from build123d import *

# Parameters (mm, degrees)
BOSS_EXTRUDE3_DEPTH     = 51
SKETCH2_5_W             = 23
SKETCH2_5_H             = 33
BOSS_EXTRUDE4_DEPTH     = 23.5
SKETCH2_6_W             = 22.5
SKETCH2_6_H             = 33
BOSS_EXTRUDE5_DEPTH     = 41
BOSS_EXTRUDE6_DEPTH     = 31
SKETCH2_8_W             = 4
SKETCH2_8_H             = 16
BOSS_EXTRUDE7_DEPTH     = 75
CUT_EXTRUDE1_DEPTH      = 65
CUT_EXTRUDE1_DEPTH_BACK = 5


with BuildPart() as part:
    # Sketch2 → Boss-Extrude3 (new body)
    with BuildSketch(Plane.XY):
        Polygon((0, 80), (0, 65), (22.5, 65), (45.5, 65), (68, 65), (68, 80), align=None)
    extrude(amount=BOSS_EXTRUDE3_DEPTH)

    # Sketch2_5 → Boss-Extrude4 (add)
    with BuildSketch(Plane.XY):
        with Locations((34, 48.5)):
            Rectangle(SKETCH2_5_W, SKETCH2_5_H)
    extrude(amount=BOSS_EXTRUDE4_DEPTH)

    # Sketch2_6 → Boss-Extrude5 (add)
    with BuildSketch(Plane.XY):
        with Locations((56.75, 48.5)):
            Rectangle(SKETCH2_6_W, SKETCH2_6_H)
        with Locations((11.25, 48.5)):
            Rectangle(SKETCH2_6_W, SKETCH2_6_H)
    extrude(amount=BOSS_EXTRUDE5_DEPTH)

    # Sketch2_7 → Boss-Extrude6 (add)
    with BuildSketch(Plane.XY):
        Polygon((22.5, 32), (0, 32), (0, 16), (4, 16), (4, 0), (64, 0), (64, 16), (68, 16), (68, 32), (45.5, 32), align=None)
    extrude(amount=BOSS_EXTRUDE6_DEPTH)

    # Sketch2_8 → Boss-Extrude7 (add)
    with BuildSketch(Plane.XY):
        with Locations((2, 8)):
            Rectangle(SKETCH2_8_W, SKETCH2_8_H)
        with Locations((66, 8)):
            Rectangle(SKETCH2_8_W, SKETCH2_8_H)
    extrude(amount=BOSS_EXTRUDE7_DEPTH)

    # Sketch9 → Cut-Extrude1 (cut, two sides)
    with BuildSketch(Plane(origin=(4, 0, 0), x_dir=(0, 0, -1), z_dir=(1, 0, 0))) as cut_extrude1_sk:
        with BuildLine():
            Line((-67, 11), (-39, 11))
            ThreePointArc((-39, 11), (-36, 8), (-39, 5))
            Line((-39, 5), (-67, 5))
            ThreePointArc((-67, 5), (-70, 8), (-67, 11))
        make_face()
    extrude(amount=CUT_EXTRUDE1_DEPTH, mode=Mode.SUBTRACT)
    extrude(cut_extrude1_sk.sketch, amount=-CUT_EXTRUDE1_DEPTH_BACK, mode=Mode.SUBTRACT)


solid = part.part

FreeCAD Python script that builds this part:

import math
import FreeCAD as App
import Part
import Sketcher
Q = App.Units.Quantity

doc = App.newDocument("Part")
body = doc.addObject("PartDesign::Body", "Body")

# Sketch on XY plane
sketch1 = body.newObject("Sketcher::SketchObject", "Sketch")
sketch1.AttachmentSupport = (doc.getObject("XY_Plane"), [""])
sketch1.MapMode = "FlatFace"
sketch1.addGeometry([
    Part.LineSegment(App.Vector(0, 80, 0), App.Vector(0, 65, 0)),
    Part.LineSegment(App.Vector(0, 65, 0), App.Vector(68, 65, 0)),
    Part.LineSegment(App.Vector(68, 65, 0), App.Vector(68, 80, 0)),
    Part.LineSegment(App.Vector(68, 80, 0), App.Vector(0, 80, 0)),
], False)
sketch1.addConstraint([
    Sketcher.Constraint("Coincident", 0, 2, 1, 1),
    Sketcher.Constraint("Coincident", 1, 2, 2, 1),
    Sketcher.Constraint("Coincident", 2, 2, 3, 1),
    Sketcher.Constraint("Coincident", 3, 2, 0, 1),
    Sketcher.Constraint("Vertical", 0),
    Sketcher.Constraint("Horizontal", 1),
    Sketcher.Constraint("Vertical", 2),
    Sketcher.Constraint("Horizontal", 3),
    Sketcher.Constraint("PointOnObject", 0, 2, -2),
    Sketcher.Constraint("DistanceX", 1, 1, 1, 2, Q("68 mm")),
    Sketcher.Constraint("DistanceY", 0, 2, 0, 1, Q("15 mm")),
    Sketcher.Constraint("DistanceY", -1, 1, 0, 2, Q("65 mm")),
])
pad1 = body.newObject("PartDesign::Pad", "Pad")
pad1.Profile = sketch1
pad1.Length = 51

# Sketch on XY plane
sketch2 = body.newObject("Sketcher::SketchObject", "Sketch001")
sketch2.AttachmentSupport = (doc.getObject("XY_Plane"), [""])
sketch2.MapMode = "FlatFace"
sketch2.addGeometry([
    Part.LineSegment(App.Vector(22, 65, 0), App.Vector(22, 32, 0)),
    Part.LineSegment(App.Vector(22, 32, 0), App.Vector(46, 32, 0)),
    Part.LineSegment(App.Vector(46, 32, 0), App.Vector(46, 65, 0)),
    Part.LineSegment(App.Vector(46, 65, 0), App.Vector(22, 65, 0)),
], False)
sketch2.addConstraint([
    Sketcher.Constraint("Coincident", 0, 2, 1, 1),
    Sketcher.Constraint("Coincident", 1, 2, 2, 1),
    Sketcher.Constraint("Coincident", 2, 2, 3, 1),
    Sketcher.Constraint("Coincident", 3, 2, 0, 1),
    Sketcher.Constraint("Vertical", 0),
    Sketcher.Constraint("Horizontal", 1),
    Sketcher.Constraint("Vertical", 2),
    Sketcher.Constraint("Horizontal", 3),
    Sketcher.Constraint("DistanceX", 1, 1, 1, 2, Q("23 mm")),
    Sketcher.Constraint("DistanceY", 0, 2, 0, 1, Q("33 mm")),
    Sketcher.Constraint("DistanceY", -1, 1, 0, 2, Q("32 mm")),
    Sketcher.Constraint("DistanceX", -1, 1, 0, 2, Q("22.5 mm")),
])
pad2 = body.newObject("PartDesign::Pad", "Pad001")
pad2.Profile = sketch2
pad2.Length = 23.5

# Sketch on XY plane
sketch3 = body.newObject("Sketcher::SketchObject", "Sketch002")
sketch3.AttachmentSupport = (doc.getObject("XY_Plane"), [""])
sketch3.MapMode = "FlatFace"
sketch3.addGeometry([
    Part.LineSegment(App.Vector(46, 65, 0), App.Vector(46, 32, 0)),  # 0
    Part.LineSegment(App.Vector(46, 32, 0), App.Vector(68, 32, 0)),  # 1
    Part.LineSegment(App.Vector(68, 32, 0), App.Vector(68, 65, 0)),  # 2
    Part.LineSegment(App.Vector(68, 65, 0), App.Vector(46, 65, 0)),  # 3
    Part.LineSegment(App.Vector(0, 65, 0), App.Vector(0, 32, 0)),  # 4
    Part.LineSegment(App.Vector(0, 32, 0), App.Vector(22, 32, 0)),  # 5
    Part.LineSegment(App.Vector(22, 32, 0), App.Vector(22, 65, 0)),  # 6
    Part.LineSegment(App.Vector(22, 65, 0), App.Vector(0, 65, 0)),  # 7
], False)
sketch3.addConstraint([
    Sketcher.Constraint("Coincident", 0, 2, 1, 1),
    Sketcher.Constraint("Coincident", 1, 2, 2, 1),
    Sketcher.Constraint("Coincident", 2, 2, 3, 1),
    Sketcher.Constraint("Coincident", 3, 2, 0, 1),
    Sketcher.Constraint("Coincident", 4, 2, 5, 1),
    Sketcher.Constraint("Coincident", 5, 2, 6, 1),
    Sketcher.Constraint("Coincident", 6, 2, 7, 1),
    Sketcher.Constraint("Coincident", 7, 2, 4, 1),
    Sketcher.Constraint("Vertical", 0),
    Sketcher.Constraint("Horizontal", 1),
    Sketcher.Constraint("Vertical", 2),
    Sketcher.Constraint("Horizontal", 3),
    Sketcher.Constraint("Vertical", 4),
    Sketcher.Constraint("Horizontal", 5),
    Sketcher.Constraint("Vertical", 6),
    Sketcher.Constraint("Horizontal", 7),
    Sketcher.Constraint("PointOnObject", 4, 2, -2),
    Sketcher.Constraint("Horizontal", 1, 2, 4, 2),
    Sketcher.Constraint("Horizontal", 3, 2, 6, 2),
    Sketcher.Constraint("Equal", 3, 5),
    Sketcher.Constraint("DistanceY", 0, 2, 0, 1, Q("33 mm")),
    Sketcher.Constraint("DistanceX", 1, 1, 1, 2, Q("22.5 mm")),
    Sketcher.Constraint("DistanceY", -1, 1, 0, 2, Q("32 mm")),
    Sketcher.Constraint("DistanceX", -1, 1, 1, 2, Q("68 mm")),
])
pad3 = body.newObject("PartDesign::Pad", "Pad002")
pad3.Profile = sketch3
pad3.Length = 41

# Sketch on XY plane
sketch4 = body.newObject("Sketcher::SketchObject", "Sketch003")
sketch4.AttachmentSupport = (doc.getObject("XY_Plane"), [""])
sketch4.MapMode = "FlatFace"
sketch4.addGeometry([
    Part.LineSegment(App.Vector(0, 32, 0), App.Vector(0, 16, 0)),  # 0
    Part.LineSegment(App.Vector(0, 16, 0), App.Vector(4, 16, 0)),  # 1
    Part.LineSegment(App.Vector(4, 16, 0), App.Vector(4, 0, 0)),  # 2
    Part.LineSegment(App.Vector(4, 0, 0), App.Vector(64, 0, 0)),  # 3
    Part.LineSegment(App.Vector(64, 0, 0), App.Vector(64, 16, 0)),  # 4
    Part.LineSegment(App.Vector(64, 16, 0), App.Vector(68, 16, 0)),  # 5
    Part.LineSegment(App.Vector(68, 16, 0), App.Vector(68, 32, 0)),  # 6
    Part.LineSegment(App.Vector(68, 32, 0), App.Vector(0, 32, 0)),  # 7
], False)
sketch4.addConstraint([
    Sketcher.Constraint("Coincident", 0, 2, 1, 1),
    Sketcher.Constraint("Coincident", 1, 2, 2, 1),
    Sketcher.Constraint("Coincident", 2, 2, 3, 1),
    Sketcher.Constraint("Coincident", 3, 2, 4, 1),
    Sketcher.Constraint("Coincident", 4, 2, 5, 1),
    Sketcher.Constraint("Coincident", 5, 2, 6, 1),
    Sketcher.Constraint("Coincident", 6, 2, 7, 1),
    Sketcher.Constraint("Coincident", 7, 2, 0, 1),
    Sketcher.Constraint("Vertical", 0),
    Sketcher.Constraint("Horizontal", 1),
    Sketcher.Constraint("Vertical", 2),
    Sketcher.Constraint("Horizontal", 3),
    Sketcher.Constraint("Vertical", 4),
    Sketcher.Constraint("Horizontal", 5),
    Sketcher.Constraint("Vertical", 6),
    Sketcher.Constraint("Horizontal", 7),
    Sketcher.Constraint("PointOnObject", 0, 2, -2),
    Sketcher.Constraint("PointOnObject", 2, 2, -1),
    Sketcher.Constraint("Horizontal", 1, 2, 4, 2),
    Sketcher.Constraint("Equal", 1, 5),
    Sketcher.Constraint("Equal", 0, 2),
    Sketcher.Constraint("DistanceX", 1, 1, 1, 2, Q("4 mm")),
    Sketcher.Constraint("DistanceX", 3, 1, 3, 2, Q("60 mm")),
    Sketcher.Constraint("DistanceY", 0, 2, 0, 1, Q("16 mm")),
])
pad4 = body.newObject("PartDesign::Pad", "Pad003")
pad4.Profile = sketch4
pad4.Length = 31

# Sketch on XY plane
sketch5 = body.newObject("Sketcher::SketchObject", "Sketch004")
sketch5.AttachmentSupport = (doc.getObject("XY_Plane"), [""])
sketch5.MapMode = "FlatFace"
sketch5.addGeometry([
    Part.LineSegment(App.Vector(0, 16, 0), App.Vector(0, 0, 0)),  # 0
    Part.LineSegment(App.Vector(0, 0, 0), App.Vector(4, 0, 0)),  # 1
    Part.LineSegment(App.Vector(4, 0, 0), App.Vector(4, 16, 0)),  # 2
    Part.LineSegment(App.Vector(4, 16, 0), App.Vector(0, 16, 0)),  # 3
    Part.LineSegment(App.Vector(64, 16, 0), App.Vector(64, 0, 0)),  # 4
    Part.LineSegment(App.Vector(64, 0, 0), App.Vector(68, 0, 0)),  # 5
    Part.LineSegment(App.Vector(68, 0, 0), App.Vector(68, 16, 0)),  # 6
    Part.LineSegment(App.Vector(68, 16, 0), App.Vector(64, 16, 0)),  # 7
], False)
sketch5.addConstraint([
    Sketcher.Constraint("Coincident", 0, 2, 1, 1),
    Sketcher.Constraint("Coincident", 1, 2, 2, 1),
    Sketcher.Constraint("Coincident", 2, 2, 3, 1),
    Sketcher.Constraint("Coincident", 3, 2, 0, 1),
    Sketcher.Constraint("Coincident", 4, 2, 5, 1),
    Sketcher.Constraint("Coincident", 5, 2, 6, 1),
    Sketcher.Constraint("Coincident", 6, 2, 7, 1),
    Sketcher.Constraint("Coincident", 7, 2, 4, 1),
    Sketcher.Constraint("Vertical", 0),
    Sketcher.Constraint("Horizontal", 1),
    Sketcher.Constraint("Vertical", 2),
    Sketcher.Constraint("Horizontal", 3),
    Sketcher.Constraint("Vertical", 4),
    Sketcher.Constraint("Horizontal", 5),
    Sketcher.Constraint("Vertical", 6),
    Sketcher.Constraint("Horizontal", 7),
    Sketcher.Constraint("Coincident", 0, 2, -1, 1),
    Sketcher.Constraint("PointOnObject", 4, 2, -1),
    Sketcher.Constraint("Horizontal", 3, 2, 6, 2),
    Sketcher.Constraint("Equal", 3, 5),
    Sketcher.Constraint("DistanceX", 1, 1, 1, 2, Q("4 mm")),
    Sketcher.Constraint("DistanceY", 0, 2, 0, 1, Q("16 mm")),
    Sketcher.Constraint("DistanceX", -1, 1, 4, 2, Q("64 mm")),
])
pad5 = body.newObject("PartDesign::Pad", "Pad004")
pad5.Profile = sketch5
pad5.Length = 75

# Sketch on YZ plane
sketch6 = body.newObject("Sketcher::SketchObject", "Sketch005")
sketch6.AttachmentSupport = (doc.getObject("YZ_Plane"), [""])
sketch6.MapMode = "FlatFace"
sketch6.AttachmentOffset = App.Placement(App.Vector(0, 0, 4), App.Rotation())
sketch6.addGeometry([
    Part.LineSegment(App.Vector(11, 39, 0), App.Vector(11, 67, 0)),
    Part.ArcOfCircle(Part.Circle(App.Vector(8, 67, 0), App.Vector(0, 0, 1), 3), math.radians(0), math.radians(180)),
    Part.LineSegment(App.Vector(5, 67, 0), App.Vector(5, 39, 0)),
    Part.ArcOfCircle(Part.Circle(App.Vector(8, 39, 0), App.Vector(0, 0, 1), 3), math.radians(180), math.radians(360)),
], False)
sketch6.addConstraint([
    Sketcher.Constraint("Tangent", 0, 2, 1, 1),
    Sketcher.Constraint("Tangent", 1, 2, 2, 1),
    Sketcher.Constraint("Tangent", 2, 2, 3, 1),
    Sketcher.Constraint("Tangent", 3, 2, 0, 1),
    Sketcher.Constraint("Vertical", 0),
    Sketcher.Constraint("Vertical", 2),
    Sketcher.Constraint("Radius", 1, Q("3 mm")),
    Sketcher.Constraint("DistanceY", 0, 1, 0, 2, Q("28 mm")),
    Sketcher.Constraint("DistanceX", -1, 1, 1, 3, Q("8 mm")),
    Sketcher.Constraint("DistanceY", -1, 1, 1, 3, Q("67 mm")),
])
pocket1 = body.newObject("PartDesign::Pocket", "Pocket")
pocket1.Profile = sketch6
pocket1.Type = "ThroughAll"
pocket1.Midplane = True

doc.recompute()
